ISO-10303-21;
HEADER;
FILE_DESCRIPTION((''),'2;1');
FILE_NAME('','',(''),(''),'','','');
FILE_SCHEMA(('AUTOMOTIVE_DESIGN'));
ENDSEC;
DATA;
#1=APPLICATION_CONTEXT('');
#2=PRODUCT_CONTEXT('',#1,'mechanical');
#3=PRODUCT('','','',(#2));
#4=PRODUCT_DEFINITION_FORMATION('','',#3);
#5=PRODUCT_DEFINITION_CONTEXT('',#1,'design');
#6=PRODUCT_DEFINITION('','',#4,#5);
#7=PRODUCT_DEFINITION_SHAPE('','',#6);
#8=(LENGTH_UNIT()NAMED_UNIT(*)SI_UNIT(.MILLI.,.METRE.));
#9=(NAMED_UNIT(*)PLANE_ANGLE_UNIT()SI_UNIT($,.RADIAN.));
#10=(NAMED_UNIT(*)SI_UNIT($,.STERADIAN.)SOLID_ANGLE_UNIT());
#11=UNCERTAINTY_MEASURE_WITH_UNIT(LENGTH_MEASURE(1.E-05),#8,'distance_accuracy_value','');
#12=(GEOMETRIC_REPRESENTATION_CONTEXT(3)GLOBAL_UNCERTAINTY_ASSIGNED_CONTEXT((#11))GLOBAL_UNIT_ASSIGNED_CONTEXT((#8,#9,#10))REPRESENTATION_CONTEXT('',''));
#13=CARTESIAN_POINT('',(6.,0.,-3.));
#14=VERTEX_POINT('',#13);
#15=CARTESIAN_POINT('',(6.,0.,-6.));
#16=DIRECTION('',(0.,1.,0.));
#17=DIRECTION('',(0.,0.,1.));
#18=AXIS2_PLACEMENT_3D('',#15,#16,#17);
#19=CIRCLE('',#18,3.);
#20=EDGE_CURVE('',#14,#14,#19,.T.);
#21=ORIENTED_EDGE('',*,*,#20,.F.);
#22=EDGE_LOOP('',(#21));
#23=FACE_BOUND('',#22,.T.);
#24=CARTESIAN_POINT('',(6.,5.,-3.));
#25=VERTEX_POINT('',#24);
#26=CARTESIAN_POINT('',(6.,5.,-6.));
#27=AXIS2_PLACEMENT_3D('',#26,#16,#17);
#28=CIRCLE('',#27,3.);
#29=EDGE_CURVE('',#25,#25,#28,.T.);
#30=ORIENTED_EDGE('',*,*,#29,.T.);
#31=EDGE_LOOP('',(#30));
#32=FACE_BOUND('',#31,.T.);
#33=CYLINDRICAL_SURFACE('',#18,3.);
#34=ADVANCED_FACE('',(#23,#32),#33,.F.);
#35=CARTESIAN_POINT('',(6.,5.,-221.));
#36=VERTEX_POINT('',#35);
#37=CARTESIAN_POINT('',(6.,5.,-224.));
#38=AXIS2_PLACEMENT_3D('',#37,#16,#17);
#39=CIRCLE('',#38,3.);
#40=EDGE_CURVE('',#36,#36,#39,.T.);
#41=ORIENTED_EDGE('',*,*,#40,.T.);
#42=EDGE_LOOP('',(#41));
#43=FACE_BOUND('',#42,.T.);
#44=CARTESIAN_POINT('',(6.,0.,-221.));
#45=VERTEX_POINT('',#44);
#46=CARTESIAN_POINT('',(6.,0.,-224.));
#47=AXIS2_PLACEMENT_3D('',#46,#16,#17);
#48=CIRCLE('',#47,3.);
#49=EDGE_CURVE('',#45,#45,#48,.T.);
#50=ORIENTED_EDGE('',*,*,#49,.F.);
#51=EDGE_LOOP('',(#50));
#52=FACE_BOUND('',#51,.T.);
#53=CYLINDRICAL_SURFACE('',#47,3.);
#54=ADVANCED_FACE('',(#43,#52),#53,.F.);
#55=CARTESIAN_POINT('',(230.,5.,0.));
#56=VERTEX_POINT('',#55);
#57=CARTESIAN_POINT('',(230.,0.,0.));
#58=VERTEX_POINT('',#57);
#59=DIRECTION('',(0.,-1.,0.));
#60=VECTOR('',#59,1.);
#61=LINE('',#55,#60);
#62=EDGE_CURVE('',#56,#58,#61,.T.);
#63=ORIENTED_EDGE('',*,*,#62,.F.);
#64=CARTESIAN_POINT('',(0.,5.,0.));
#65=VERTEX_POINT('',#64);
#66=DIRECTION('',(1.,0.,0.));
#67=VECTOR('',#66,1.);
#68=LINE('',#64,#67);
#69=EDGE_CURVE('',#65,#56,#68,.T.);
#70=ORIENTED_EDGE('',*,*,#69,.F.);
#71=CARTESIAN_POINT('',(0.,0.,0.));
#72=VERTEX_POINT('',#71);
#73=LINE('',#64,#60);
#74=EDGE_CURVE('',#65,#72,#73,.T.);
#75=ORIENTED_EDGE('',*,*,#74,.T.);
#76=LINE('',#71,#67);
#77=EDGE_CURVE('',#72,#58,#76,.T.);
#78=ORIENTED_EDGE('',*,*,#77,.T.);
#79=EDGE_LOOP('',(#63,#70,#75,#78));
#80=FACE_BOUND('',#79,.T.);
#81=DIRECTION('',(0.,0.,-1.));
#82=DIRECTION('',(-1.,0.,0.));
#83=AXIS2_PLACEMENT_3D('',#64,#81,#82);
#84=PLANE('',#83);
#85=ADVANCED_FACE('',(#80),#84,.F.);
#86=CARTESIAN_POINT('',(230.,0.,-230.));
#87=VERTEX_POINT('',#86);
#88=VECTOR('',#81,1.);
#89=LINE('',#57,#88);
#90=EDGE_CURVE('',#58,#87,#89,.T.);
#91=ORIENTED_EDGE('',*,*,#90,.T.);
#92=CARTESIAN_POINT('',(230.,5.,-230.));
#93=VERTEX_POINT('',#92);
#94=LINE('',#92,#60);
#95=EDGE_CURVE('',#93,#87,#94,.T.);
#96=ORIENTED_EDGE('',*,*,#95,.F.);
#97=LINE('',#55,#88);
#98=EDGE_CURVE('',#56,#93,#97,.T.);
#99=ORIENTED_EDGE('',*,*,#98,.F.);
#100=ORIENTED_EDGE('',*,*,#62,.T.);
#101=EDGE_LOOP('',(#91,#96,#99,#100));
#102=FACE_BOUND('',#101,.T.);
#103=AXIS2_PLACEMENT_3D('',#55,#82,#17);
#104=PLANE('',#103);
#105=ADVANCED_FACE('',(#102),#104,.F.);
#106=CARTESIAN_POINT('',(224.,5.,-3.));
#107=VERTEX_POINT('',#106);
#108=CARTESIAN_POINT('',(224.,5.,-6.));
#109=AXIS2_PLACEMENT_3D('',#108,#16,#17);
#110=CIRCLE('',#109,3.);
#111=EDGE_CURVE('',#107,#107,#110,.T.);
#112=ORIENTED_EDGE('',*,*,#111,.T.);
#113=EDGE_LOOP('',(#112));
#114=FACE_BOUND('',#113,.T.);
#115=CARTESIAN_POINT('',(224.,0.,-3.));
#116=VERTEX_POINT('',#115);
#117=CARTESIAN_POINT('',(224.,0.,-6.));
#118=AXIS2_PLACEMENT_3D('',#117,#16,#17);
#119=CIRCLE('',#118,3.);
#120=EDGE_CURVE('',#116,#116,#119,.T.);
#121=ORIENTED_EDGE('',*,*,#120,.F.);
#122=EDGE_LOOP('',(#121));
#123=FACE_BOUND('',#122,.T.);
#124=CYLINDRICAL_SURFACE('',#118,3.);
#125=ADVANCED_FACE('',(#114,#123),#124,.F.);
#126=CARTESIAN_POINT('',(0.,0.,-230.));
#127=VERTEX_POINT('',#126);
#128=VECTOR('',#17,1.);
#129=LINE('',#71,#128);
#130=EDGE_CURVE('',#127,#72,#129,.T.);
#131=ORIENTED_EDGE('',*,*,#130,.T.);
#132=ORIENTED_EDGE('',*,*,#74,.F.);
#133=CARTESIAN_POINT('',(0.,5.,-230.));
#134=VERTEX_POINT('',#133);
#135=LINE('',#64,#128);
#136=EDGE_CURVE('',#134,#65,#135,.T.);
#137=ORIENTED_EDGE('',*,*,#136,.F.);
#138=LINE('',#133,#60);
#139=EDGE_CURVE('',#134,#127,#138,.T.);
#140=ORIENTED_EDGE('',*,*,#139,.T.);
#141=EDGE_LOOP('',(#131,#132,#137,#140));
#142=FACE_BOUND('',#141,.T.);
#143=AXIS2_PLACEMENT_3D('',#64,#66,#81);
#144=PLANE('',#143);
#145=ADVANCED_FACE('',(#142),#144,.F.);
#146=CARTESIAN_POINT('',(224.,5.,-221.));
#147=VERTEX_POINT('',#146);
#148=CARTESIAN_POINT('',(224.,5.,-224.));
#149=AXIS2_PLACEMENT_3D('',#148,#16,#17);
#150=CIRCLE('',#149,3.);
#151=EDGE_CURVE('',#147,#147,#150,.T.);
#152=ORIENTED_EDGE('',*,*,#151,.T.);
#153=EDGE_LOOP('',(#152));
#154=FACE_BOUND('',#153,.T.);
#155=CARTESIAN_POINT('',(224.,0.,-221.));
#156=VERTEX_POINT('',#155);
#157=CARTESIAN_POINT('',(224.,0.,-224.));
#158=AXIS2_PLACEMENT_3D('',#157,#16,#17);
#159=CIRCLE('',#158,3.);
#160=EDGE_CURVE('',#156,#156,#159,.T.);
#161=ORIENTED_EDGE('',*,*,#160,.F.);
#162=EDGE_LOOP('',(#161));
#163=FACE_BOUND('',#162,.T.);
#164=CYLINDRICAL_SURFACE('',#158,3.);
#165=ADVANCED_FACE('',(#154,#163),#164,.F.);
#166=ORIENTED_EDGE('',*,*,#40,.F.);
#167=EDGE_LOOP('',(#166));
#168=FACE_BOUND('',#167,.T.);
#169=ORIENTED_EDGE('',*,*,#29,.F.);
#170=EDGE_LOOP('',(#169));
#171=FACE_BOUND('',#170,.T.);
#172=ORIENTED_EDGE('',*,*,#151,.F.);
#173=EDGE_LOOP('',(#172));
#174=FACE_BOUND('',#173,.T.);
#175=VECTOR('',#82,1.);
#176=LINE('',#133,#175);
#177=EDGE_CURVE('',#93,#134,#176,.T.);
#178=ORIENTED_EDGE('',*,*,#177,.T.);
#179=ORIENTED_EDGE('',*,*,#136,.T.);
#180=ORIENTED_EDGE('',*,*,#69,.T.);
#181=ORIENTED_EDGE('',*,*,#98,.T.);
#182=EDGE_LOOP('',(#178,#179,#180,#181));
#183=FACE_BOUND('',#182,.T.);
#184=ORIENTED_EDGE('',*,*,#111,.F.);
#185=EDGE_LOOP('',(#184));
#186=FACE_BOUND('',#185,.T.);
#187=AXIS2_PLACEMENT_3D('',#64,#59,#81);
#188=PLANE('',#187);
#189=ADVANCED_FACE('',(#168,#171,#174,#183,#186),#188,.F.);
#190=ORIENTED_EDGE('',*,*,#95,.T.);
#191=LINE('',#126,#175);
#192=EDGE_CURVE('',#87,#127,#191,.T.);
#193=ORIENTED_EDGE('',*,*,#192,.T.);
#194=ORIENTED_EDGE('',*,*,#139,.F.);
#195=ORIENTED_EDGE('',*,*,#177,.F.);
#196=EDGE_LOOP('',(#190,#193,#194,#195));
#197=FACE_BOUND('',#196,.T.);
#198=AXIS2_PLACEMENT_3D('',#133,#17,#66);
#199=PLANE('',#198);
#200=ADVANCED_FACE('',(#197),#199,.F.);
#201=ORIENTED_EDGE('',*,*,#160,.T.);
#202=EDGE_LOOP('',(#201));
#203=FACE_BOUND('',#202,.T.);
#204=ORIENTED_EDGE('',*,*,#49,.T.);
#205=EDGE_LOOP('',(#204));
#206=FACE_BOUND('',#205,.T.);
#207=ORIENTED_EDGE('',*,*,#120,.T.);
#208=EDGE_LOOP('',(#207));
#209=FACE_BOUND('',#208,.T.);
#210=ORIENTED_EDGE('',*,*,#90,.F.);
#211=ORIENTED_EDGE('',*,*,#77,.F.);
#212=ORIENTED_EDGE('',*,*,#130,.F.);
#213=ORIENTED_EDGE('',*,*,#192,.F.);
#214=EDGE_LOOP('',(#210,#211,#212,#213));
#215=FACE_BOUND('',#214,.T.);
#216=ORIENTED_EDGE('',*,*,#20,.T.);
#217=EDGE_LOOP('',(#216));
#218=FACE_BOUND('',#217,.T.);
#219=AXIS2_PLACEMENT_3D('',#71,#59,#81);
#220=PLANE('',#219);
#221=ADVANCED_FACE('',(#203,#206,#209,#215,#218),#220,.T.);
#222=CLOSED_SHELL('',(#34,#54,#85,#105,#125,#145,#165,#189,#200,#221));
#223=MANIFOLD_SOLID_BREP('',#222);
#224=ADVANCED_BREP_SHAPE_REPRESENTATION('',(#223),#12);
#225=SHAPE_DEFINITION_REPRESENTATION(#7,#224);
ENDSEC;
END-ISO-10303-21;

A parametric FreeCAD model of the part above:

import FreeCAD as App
import Part
import Sketcher

V = App.Vector

doc = App.newDocument("Part")
params = doc.addObject("Spreadsheet::Sheet", "Params")
for row, (alias, value) in enumerate([
    ("sketch1_width", "230 mm"),
    ("pad1_length", "5 mm"),
    ("sketch2_diameter", "6 mm"),
    ("sketch3_diameter", "6 mm"),
    ("sketch4_diameter", "6 mm"),
    ("sketch5_diameter", "6 mm"),
], start=1):
    params.set(f"A{row}", alias)
    params.set(f"B{row}", "=" + value)
    params.setAlias(f"B{row}", alias)

body = doc.addObject("PartDesign::Body", "Body")

# Sketch on XZ plane
sketch1 = body.newObject("Sketcher::SketchObject", "Sketch")
sketch1.AttachmentSupport = (doc.getObject("XZ_Plane"), [""])
sketch1.MapMode = "FlatFace"
sketch1.addGeometry([
    Part.LineSegment(V(0, -230, 0), V(0, 0, 0)),
    Part.LineSegment(V(0, 0, 0), V(230, 0, 0)),
    Part.LineSegment(V(230, 0, 0), V(230, -230, 0)),
    Part.LineSegment(V(230, -230, 0), V(0, -230, 0)),
], False)
sketch1.addConstraint([
    Sketcher.Constraint("Coincident", 0, 2, 1, 1),
    Sketcher.Constraint("Coincident", 1, 2, 2, 1),
    Sketcher.Constraint("Coincident", 2, 2, 3, 1),
    Sketcher.Constraint("Coincident", 3, 2, 0, 1),
    Sketcher.Constraint("Vertical", 0),
    Sketcher.Constraint("Horizontal", 1),
    Sketcher.Constraint("Vertical", 2),
    Sketcher.Constraint("Horizontal", 3),
    Sketcher.Constraint("Coincident", 0, 2, -1, 1),
    Sketcher.Constraint("Equal", 3, 0),
    Sketcher.Constraint("DistanceX", 1, 1, 1, 2, 230.0),
])
sketch1.setExpression("Constraints[10]", "Params.sketch1_width")
pad1 = body.newObject("PartDesign::Pad", "Pad")
pad1.Profile = sketch1
pad1.setExpression("Length", "Params.pad1_length")
pad1.Reversed = True

# Sketch on XZ plane
sketch2 = body.newObject("Sketcher::SketchObject", "Sketch001")
sketch2.AttachmentSupport = (doc.getObject("XZ_Plane"), [""])
sketch2.MapMode = "FlatFace"
sketch2.AttachmentOffset = App.Placement(V(0, 0, -5), App.Rotation())
sketch2.addGeometry(Part.Circle(V(6, -224, 0), V(0, 0, 1), 3), False)
sketch2.addConstraint([
    Sketcher.Constraint("Diameter", 0, 6.0),
    Sketcher.Constraint("DistanceX", -1, 1, 0, 3, 6.0),
    Sketcher.Constraint("DistanceY", 0, 3, -1, 1, 224.0),
])
sketch2.setExpression("Constraints[0]", "Params.sketch2_diameter")
pocket1 = body.newObject("PartDesign::Pocket", "Pocket")
pocket1.Profile = sketch2
pocket1.Type = "ThroughAll"
pocket1.Reversed = True

# Sketch on XZ plane
sketch3 = body.newObject("Sketcher::SketchObject", "Sketch002")
sketch3.AttachmentSupport = (doc.getObject("XZ_Plane"), [""])
sketch3.MapMode = "FlatFace"
sketch3.AttachmentOffset = App.Placement(V(0, 0, -5), App.Rotation())
sketch3.addGeometry(Part.Circle(V(224, -224, 0), V(0, 0, 1), 3), False)
sketch3.addConstraint([
    Sketcher.Constraint("Diameter", 0, 6.0),
    Sketcher.Constraint("DistanceX", -1, 1, 0, 3, 224.0),
    Sketcher.Constraint("DistanceY", 0, 3, -1, 1, 224.0),
])
sketch3.setExpression("Constraints[0]", "Params.sketch3_diameter")
pocket2 = body.newObject("PartDesign::Pocket", "Pocket001")
pocket2.Profile = sketch3
pocket2.Type = "ThroughAll"
pocket2.Reversed = True

# Sketch on XZ plane
sketch4 = body.newObject("Sketcher::SketchObject", "Sketch003")
sketch4.AttachmentSupport = (doc.getObject("XZ_Plane"), [""])
sketch4.MapMode = "FlatFace"
sketch4.AttachmentOffset = App.Placement(V(0, 0, -5), App.Rotation())
sketch4.addGeometry(Part.Circle(V(6, -6, 0), V(0, 0, 1), 3), False)
sketch4.addConstraint([
    Sketcher.Constraint("Diameter", 0, 6.0),
    Sketcher.Constraint("DistanceX", -1, 1, 0, 3, 6.0),
    Sketcher.Constraint("DistanceY", 0, 3, -1, 1, 6.0),
])
sketch4.setExpression("Constraints[0]", "Params.sketch4_diameter")
pocket3 = body.newObject("PartDesign::Pocket", "Pocket002")
pocket3.Profile = sketch4
pocket3.Type = "ThroughAll"
pocket3.Reversed = True

# Sketch on XZ plane
sketch5 = body.newObject("Sketcher::SketchObject", "Sketch004")
sketch5.AttachmentSupport = (doc.getObject("XZ_Plane"), [""])
sketch5.MapMode = "FlatFace"
sketch5.AttachmentOffset = App.Placement(V(0, 0, -5), App.Rotation())
sketch5.addGeometry(Part.Circle(V(224, -6, 0), V(0, 0, 1), 3), False)
sketch5.addConstraint([
    Sketcher.Constraint("Diameter", 0, 6.0),
    Sketcher.Constraint("DistanceX", -1, 1, 0, 3, 224.0),
    Sketcher.Constraint("DistanceY", 0, 3, -1, 1, 6.0),
])
sketch5.setExpression("Constraints[0]", "Params.sketch5_diameter")
pocket4 = body.newObject("PartDesign::Pocket", "Pocket003")
pocket4.Profile = sketch5
pocket4.Type = "ThroughAll"
pocket4.Reversed = True

doc.recompute()
